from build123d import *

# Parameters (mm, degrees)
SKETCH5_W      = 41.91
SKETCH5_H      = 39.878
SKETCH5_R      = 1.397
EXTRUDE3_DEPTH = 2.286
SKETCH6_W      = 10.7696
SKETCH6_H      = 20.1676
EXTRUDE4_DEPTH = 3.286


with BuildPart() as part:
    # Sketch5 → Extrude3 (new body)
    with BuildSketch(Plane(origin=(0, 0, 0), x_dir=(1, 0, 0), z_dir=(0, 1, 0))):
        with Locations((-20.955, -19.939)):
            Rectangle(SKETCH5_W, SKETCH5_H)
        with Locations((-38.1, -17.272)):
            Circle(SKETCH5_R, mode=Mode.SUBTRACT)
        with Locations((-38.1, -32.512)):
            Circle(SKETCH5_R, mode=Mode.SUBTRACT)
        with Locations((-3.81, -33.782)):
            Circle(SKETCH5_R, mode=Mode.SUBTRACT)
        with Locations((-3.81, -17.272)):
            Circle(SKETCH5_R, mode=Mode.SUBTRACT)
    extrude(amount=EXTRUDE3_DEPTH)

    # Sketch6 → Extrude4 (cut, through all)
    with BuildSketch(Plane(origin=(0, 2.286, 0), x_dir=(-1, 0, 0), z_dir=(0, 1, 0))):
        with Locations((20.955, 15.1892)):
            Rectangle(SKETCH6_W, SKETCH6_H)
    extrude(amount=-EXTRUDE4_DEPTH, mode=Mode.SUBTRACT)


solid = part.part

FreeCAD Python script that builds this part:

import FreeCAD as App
import Part
import Sketcher

V = App.Vector
Q = App.Units.Quantity


def add_polygon(sketch, points):
    """Adds a closed chain of lines whose ends are joined by coincident constraints."""
    first, n = sketch.GeometryCount, len(points)
    for a, b in zip(points, points[1:] + points[:1]):
        sketch.addGeometry(Part.LineSegment(App.Vector(*a, 0), App.Vector(*b, 0)), False)
    for i in range(n):
        sketch.addConstraint(Sketcher.Constraint("Coincident", first + i, 2, first + (i + 1) % n, 1))

doc = App.newDocument("Part")
params = doc.addObject("Spreadsheet::Sheet", "Params")
for row, (alias, value) in enumerate([
    ("sketch1_diameter", "0.11 in"),
    ("sketch1_width", "1.65 in"),
    ("sketch1_height", "1.57 in"),
    ("pad1_length", "0.09 in"),
    ("sketch2_width", "0.424 in"),
    ("sketch2_height", "0.794 in"),
], start=1):
    params.set(f"A{row}", alias)
    params.set(f"B{row}", "=" + value)
    params.setAlias(f"B{row}", alias)

body = doc.addObject("PartDesign::Body", "Body")

sketch1 = body.newObject("Sketcher::SketchObject", "Sketch")
sketch1.AttachmentSupport = (doc.getObject("XZ_Plane"), [""])
sketch1.MapMode = "FlatFace"
add_polygon(sketch1, [(-41.9, 0), (-41.9, 39.9), (0, 39.9), (0, 0)])
sketch1.addGeometry(Part.Circle(V(-38.1, 32.5, 0), V(0, 0, 1), 1.4), False)
sketch1.addGeometry(Part.Circle(V(-3.8, 33.8, 0), V(0, 0, 1), 1.4), False)
sketch1.addGeometry(Part.Circle(V(-38.1, 17.3, 0), V(0, 0, 1), 1.4), False)
sketch1.addGeometry(Part.Circle(V(-3.8, 17.3, 0), V(0, 0, 1), 1.4), False)
sketch1.addConstraint([
    Sketcher.Constraint("Vertical", 0),
    Sketcher.Constraint("Horizontal", 1),
    Sketcher.Constraint("Vertical", 2),
    Sketcher.Constraint("Horizontal", 3),
    Sketcher.Constraint("Coincident", 2, 2, -1, 1),
    Sketcher.Constraint("Equal", 4, 5),
    Sketcher.Constraint("Equal", 5, 6),
    Sketcher.Constraint("Equal", 6, 7),
    Sketcher.Constraint("Horizontal", 6, 3, 7, 3),
    Sketcher.Constraint("Vertical", 4, 3, 6, 3),
    Sketcher.Constraint("Vertical", 5, 3, 7, 3),
    Sketcher.Constraint("Diameter", 4, Q("0.11 in")),
    Sketcher.Constraint("DistanceX", 1, 1, 1, 2, Q("1.65 in")),
    Sketcher.Constraint("DistanceY", 0, 1, 0, 2, Q("1.57 in")),
    Sketcher.Constraint("DistanceX", 4, 3, -1, 1, Q("1.5 in")),
    Sketcher.Constraint("DistanceY", 6, 3, 4, 3, Q("0.6 in")),
    Sketcher.Constraint("DistanceX", 0, 2, 5, 3, Q("1.5 in")),
    Sketcher.Constraint("DistanceY", -1, 1, 4, 3, Q("1.28 in")),
    Sketcher.Constraint("DistanceY", -1, 1, 5, 3, Q("1.33 in")),
])
sketch1.setExpression("Constraints[15]", "Params.sketch1_diameter")
sketch1.setExpression("Constraints[16]", "Params.sketch1_width")
sketch1.setExpression("Constraints[17]", "Params.sketch1_height")
pad1 = body.newObject("PartDesign::Pad", "Pad")
pad1.Profile = sketch1
pad1.setExpression("Length", "Params.pad1_length")
pad1.Reversed = True

sketch2 = body.newObject("Sketcher::SketchObject", "Sketch001")
sketch2.AttachmentSupport = (doc.getObject("XZ_Plane"), [""])
sketch2.MapMode = "FlatFace"
sketch2.AttachmentOffset = App.Placement(V(0, 0, -0.09 * 25.4), App.Rotation())
add_polygon(sketch2, [(-16, 25), (-16, 5), (-26, 5), (-26, 25)])
sketch2.addConstraint([
    Sketcher.Constraint("Vertical", 0),
    Sketcher.Constraint("Horizontal", 1),
    Sketcher.Constraint("Vertical", 2),
    Sketcher.Constraint("Horizontal", 3),
    Sketcher.Constraint("DistanceX", 1, 2, 1, 1, Q("0.424 in")),
    Sketcher.Constraint("DistanceY", 0, 2, 0, 1, Q("0.794 in")),
    Sketcher.Constraint("DistanceX", 0, 2, -1, 1, Q("0.613 in")),
    Sketcher.Constraint("DistanceY", -1, 1, 0, 2, Q("0.201 in")),
])
sketch2.setExpression("Constraints[8]", "Params.sketch2_width")
sketch2.setExpression("Constraints[9]", "Params.sketch2_height")
pocket1 = body.newObject("PartDesign::Pocket", "Pocket")
pocket1.Profile = sketch2
pocket1.Type = "ThroughAll"
pocket1.Reversed = True

doc.recompute()
